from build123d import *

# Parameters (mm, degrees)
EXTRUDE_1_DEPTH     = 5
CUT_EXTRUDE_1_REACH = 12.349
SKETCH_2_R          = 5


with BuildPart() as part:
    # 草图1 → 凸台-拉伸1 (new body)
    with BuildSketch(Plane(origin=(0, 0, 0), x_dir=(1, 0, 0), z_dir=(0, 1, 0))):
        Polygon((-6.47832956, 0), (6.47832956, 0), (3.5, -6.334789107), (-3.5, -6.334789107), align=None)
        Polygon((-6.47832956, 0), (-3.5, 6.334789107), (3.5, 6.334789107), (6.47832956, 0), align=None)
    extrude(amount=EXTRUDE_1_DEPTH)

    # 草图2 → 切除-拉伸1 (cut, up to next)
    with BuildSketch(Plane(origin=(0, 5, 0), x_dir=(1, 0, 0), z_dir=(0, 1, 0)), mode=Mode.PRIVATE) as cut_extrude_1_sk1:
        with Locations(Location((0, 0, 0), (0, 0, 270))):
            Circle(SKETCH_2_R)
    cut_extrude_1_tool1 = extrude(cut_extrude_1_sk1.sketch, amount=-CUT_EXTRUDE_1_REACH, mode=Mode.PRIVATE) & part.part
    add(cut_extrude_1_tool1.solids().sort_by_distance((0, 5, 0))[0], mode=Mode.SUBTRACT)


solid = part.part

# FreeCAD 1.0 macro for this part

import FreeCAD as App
import Part
import Sketcher
from FreeCAD import Vector
Q = App.Units.Quantity


def add_polygon(sketch, points):
    """Adds a closed chain of lines whose ends are joined by coincident constraints."""
    first, n = sketch.GeometryCount, len(points)
    for a, b in zip(points, points[1:] + points[:1]):
        sketch.addGeometry(Part.LineSegment(App.Vector(*a, 0), App.Vector(*b, 0)), False)
    for i in range(n):
        sketch.addConstraint(Sketcher.Constraint("Coincident", first + i, 2, first + (i + 1) % n, 1))

doc = App.newDocument("Part")
params = doc.addObject("Spreadsheet::Sheet", "Params")
for row, (alias, value) in enumerate([
    ("sketch1_width", "7 mm"),
    ("sketch1_length", "7 mm"),
    ("pad1_length", "5 mm"),
    ("sketch2_diameter", "10 mm"),
], start=1):
    params.set(f"A{row}", alias)
    params.set(f"B{row}", "=" + value)
    params.setAlias(f"B{row}", alias)

body = doc.addObject("PartDesign::Body", "Body")

sketch1 = body.newObject("Sketcher::SketchObject", "Sketch")
sketch1.AttachmentSupport = (doc.getObject("XZ_Plane"), [""])
sketch1.MapMode = "FlatFace"
add_polygon(sketch1, [(3.5, 6.334789), (6.47833, 0), (3.5, -6.334789), (-3.5, -6.334789), (-6.47833, 0), (-3.5, 6.334789)])
sketch1.addConstraint([
    Sketcher.Constraint("Horizontal", 2),
    Sketcher.Constraint("Horizontal", 5),
    Sketcher.Constraint("Symmetric", 0, 2, 3, 2, -1, 1),
    Sketcher.Constraint("Symmetric", 1, 2, 4, 2, -1, 1),
    Sketcher.Constraint("PointOnObject", 0, 2, -1),
    Sketcher.Constraint("Parallel", 0, 3),
    Sketcher.Constraint("Vertical", 2, 2, 4, 2),
    Sketcher.Constraint("DistanceX", 2, 2, 2, 1, Q("7 mm")),
    Sketcher.Constraint("Distance", 0, Q("7 mm")),
    Sketcher.Constraint("DistanceX", -1, 1, 0, 2, Q("6.47833 mm")),
])
sketch1.setExpression("Constraints[13]", "Params.sketch1_width")
sketch1.setExpression("Constraints[14]", "Params.sketch1_length")
pad1 = body.newObject("PartDesign::Pad", "Pad")
pad1.Profile = sketch1
pad1.setExpression("Length", "Params.pad1_length")
pad1.Reversed = True

sketch2 = body.newObject("Sketcher::SketchObject", "Sketch001")
sketch2.AttachmentSupport = (doc.getObject("XZ_Plane"), [""])
sketch2.MapMode = "FlatFace"
sketch2.AttachmentOffset = App.Placement(Vector(0, 0, -5), App.Rotation())
sketch2.addGeometry(Part.Circle(Vector(0, 0, 0), Vector(0, 0, 1), 5), False)
sketch2.addConstraint([
    Sketcher.Constraint("Coincident", 0, 3, -1, 1),
    Sketcher.Constraint("Diameter", 0, Q("10 mm")),
])
sketch2.setExpression("Constraints[1]", "Params.sketch2_diameter")
pocket1 = body.newObject("PartDesign::Pocket", "Pocket")
pocket1.Profile = sketch2
pocket1.Type = "UpToFirst"
pocket1.Reversed = True

doc.recompute()
